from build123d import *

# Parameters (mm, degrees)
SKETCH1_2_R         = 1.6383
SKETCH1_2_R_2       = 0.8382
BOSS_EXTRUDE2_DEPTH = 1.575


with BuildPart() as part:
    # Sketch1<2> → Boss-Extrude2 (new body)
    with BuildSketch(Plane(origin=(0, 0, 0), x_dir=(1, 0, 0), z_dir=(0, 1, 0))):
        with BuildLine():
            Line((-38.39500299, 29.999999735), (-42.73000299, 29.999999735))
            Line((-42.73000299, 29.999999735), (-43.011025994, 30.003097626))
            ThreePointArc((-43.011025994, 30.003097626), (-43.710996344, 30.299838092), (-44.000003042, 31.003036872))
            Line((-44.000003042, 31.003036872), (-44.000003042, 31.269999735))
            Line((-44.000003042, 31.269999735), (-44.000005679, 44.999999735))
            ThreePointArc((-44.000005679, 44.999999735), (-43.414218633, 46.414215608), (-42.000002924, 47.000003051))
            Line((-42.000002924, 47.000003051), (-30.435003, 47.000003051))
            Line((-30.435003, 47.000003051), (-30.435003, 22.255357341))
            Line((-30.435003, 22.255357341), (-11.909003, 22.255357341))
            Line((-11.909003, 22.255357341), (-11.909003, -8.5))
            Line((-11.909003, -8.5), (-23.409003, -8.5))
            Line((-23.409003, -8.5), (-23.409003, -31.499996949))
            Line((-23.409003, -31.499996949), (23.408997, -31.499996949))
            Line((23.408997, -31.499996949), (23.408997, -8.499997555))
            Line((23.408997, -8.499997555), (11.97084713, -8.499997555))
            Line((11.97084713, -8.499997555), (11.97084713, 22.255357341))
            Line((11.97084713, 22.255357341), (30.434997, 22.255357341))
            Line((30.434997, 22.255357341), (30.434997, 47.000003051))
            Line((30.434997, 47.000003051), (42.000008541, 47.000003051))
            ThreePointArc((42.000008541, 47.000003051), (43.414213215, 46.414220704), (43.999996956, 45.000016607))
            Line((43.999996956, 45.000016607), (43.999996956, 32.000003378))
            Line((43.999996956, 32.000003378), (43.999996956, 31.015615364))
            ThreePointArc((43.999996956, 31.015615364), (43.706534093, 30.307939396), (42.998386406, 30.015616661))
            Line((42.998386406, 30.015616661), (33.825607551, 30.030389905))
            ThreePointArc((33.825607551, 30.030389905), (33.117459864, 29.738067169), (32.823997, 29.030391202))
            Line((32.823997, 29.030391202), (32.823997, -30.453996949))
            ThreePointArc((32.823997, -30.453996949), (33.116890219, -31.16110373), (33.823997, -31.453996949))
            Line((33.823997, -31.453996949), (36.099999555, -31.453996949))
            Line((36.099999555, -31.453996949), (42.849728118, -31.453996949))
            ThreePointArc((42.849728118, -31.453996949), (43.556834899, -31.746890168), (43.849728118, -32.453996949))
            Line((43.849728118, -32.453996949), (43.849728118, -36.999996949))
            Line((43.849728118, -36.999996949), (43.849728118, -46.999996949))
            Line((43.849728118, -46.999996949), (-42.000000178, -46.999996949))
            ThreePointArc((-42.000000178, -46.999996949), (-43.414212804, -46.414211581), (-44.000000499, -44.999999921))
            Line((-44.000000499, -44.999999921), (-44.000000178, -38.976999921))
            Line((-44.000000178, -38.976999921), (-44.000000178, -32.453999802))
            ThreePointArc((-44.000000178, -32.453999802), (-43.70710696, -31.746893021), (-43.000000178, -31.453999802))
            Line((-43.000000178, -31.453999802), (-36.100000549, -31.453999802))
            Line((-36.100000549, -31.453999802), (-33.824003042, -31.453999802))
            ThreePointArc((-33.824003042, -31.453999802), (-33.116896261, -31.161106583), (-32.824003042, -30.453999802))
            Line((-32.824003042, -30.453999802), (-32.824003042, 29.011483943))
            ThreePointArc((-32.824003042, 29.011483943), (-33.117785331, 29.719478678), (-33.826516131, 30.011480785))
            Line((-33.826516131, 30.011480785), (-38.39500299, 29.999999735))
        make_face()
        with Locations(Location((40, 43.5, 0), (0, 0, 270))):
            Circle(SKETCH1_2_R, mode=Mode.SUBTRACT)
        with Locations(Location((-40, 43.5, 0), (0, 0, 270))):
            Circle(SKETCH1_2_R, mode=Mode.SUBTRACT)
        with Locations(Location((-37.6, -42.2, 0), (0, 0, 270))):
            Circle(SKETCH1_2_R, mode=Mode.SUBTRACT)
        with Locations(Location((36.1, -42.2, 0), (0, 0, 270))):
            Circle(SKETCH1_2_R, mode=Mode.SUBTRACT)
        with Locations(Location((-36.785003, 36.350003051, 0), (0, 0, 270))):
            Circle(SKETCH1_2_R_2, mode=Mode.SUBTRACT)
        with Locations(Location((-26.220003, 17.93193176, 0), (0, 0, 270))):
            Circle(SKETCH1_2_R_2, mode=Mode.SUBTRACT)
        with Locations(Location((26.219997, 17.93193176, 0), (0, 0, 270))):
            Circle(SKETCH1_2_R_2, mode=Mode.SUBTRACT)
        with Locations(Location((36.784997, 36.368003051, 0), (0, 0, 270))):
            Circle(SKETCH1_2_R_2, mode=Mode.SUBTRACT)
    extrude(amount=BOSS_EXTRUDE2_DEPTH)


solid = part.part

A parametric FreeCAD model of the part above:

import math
import FreeCAD as App
import Part
import Sketcher

V = App.Vector
Q = App.Units.Quantity

doc = App.newDocument("Part")
body = doc.addObject("PartDesign::Body", "Body")

# Sketch on XZ plane
sketch1 = doc.addObject("Sketcher::SketchObject", "Sketch")
body.addObject(sketch1)
sketch1.AttachmentSupport = (doc.XZ_Plane, [""])
sketch1.MapMode = "FlatFace"
sketch1.addGeometry(Part.LineSegment(V(-42.73, -30, 0), V(-38.4, -30, 0)), False)
sketch1.addGeometry(Part.LineSegment(V(-38.4, -30, 0), V(-33.83, -30.01, 0)), False)
sketch1.addGeometry(Part.ArcOfCircle(Part.Circle(V(-33.82, -29.01, 0), V(0, 0, 1), 1), math.radians(-90), math.radians(0)), False)
sketch1.addGeometry(Part.LineSegment(V(-32.82, -29.01, 0), V(-32.82, 30.45, 0)), False)
sketch1.addGeometry(Part.ArcOfCircle(Part.Circle(V(-33.82, 30.45, 0), V(0, 0, 1), 1), math.radians(0), math.radians(90)), False)
sketch1.addGeometry(Part.LineSegment(V(-33.82, 31.45, 0), V(-43, 31.45, 0)), False)
sketch1.addGeometry(Part.ArcOfCircle(Part.Circle(V(-43, 32.45, 0), V(0, 0, 1), 1), math.radians(180), math.radians(270)), False)
sketch1.addGeometry(Part.LineSegment(V(-44, 32.45, 0), V(-44, 38.98, 0)), False)
sketch1.addGeometry(Part.LineSegment(V(-44, 38.98, 0), V(-44, 45, 0)), False)
sketch1.addGeometry(Part.ArcOfCircle(Part.Circle(V(-42, 45, 0), V(0, 0, 1), 2), math.radians(90), math.radians(180)), False)
sketch1.addGeometry(Part.LineSegment(V(-42, 47, 0), V(43.85, 47, 0)), False)
sketch1.addGeometry(Part.LineSegment(V(43.85, 47, 0), V(43.85, 32.45, 0)), False)
sketch1.addGeometry(Part.ArcOfCircle(Part.Circle(V(42.85, 32.45, 0), V(0, 0, 1), 1), math.radians(-90), math.radians(0)), False)
sketch1.addGeometry(Part.LineSegment(V(42.85, 31.45, 0), V(33.82, 31.45, 0)), False)
sketch1.addGeometry(Part.ArcOfCircle(Part.Circle(V(33.82, 30.45, 0), V(0, 0, 1), 1), math.radians(90), math.radians(180)), False)
sketch1.addGeometry(Part.LineSegment(V(32.82, 30.45, 0), V(32.82, -29.03, 0)), False)
sketch1.addGeometry(Part.ArcOfCircle(Part.Circle(V(33.82, -29.03, 0), V(0, 0, 1), 1), math.radians(-180), math.radians(-90)), False)
sketch1.addGeometry(Part.LineSegment(V(33.83, -30.03, 0), V(43, -30.02, 0)), False)
sketch1.addGeometry(Part.ArcOfCircle(Part.Circle(V(43, -31.02, 0), V(0, 0, 1), 1), math.radians(0), math.radians(90)), False)
sketch1.addGeometry(Part.LineSegment(V(44, -31.02, 0), V(44, -45, 0)), False)
sketch1.addGeometry(Part.ArcOfCircle(Part.Circle(V(42, -45, 0), V(0, 0, 1), 2), math.radians(-90), math.radians(0)), False)
sketch1.addGeometry(Part.LineSegment(V(42, -47, 0), V(30.43, -47, 0)), False)
sketch1.addGeometry(Part.LineSegment(V(30.43, -47, 0), V(30.43, -22.26, 0)), False)
sketch1.addGeometry(Part.LineSegment(V(30.43, -22.26, 0), V(11.97, -22.26, 0)), False)
sketch1.addGeometry(Part.LineSegment(V(11.97, -22.26, 0), V(11.97, 8.5, 0)), False)
sketch1.addGeometry(Part.LineSegment(V(11.97, 8.5, 0), V(23.41, 8.5, 0)), False)
sketch1.addGeometry(Part.LineSegment(V(23.41, 8.5, 0), V(23.41, 31.5, 0)), False)
sketch1.addGeometry(Part.LineSegment(V(23.41, 31.5, 0), V(-23.41, 31.5, 0)), False)
sketch1.addGeometry(Part.LineSegment(V(-23.41, 31.5, 0), V(-23.41, 8.5, 0)), False)
sketch1.addGeometry(Part.LineSegment(V(-23.41, 8.5, 0), V(-11.91, 8.5, 0)), False)
sketch1.addGeometry(Part.LineSegment(V(-11.91, 8.5, 0), V(-11.91, -22.26, 0)), False)
sketch1.addGeometry(Part.LineSegment(V(-11.91, -22.26, 0), V(-30.44, -22.26, 0)), False)
sketch1.addGeometry(Part.LineSegment(V(-30.44, -22.26, 0), V(-30.44, -47, 0)), False)
sketch1.addGeometry(Part.LineSegment(V(-30.44, -47, 0), V(-42, -47, 0)), False)
sketch1.addGeometry(Part.ArcOfCircle(Part.Circle(V(-42, -45, 0), V(0, 0, 1), 2), math.radians(180), math.radians(270)), False)
sketch1.addGeometry(Part.LineSegment(V(-44, -45, 0), V(-44, -31.27, 0)), False)
sketch1.addGeometry(Part.LineSegment(V(-44, -31.27, 0), V(-44, -31, 0)), False)
sketch1.addGeometry(Part.ArcOfCircle(Part.Circle(V(-43, -31, 0), V(0, 0, 1), 1), math.radians(91), math.radians(180)), False)
sketch1.addGeometry(Part.LineSegment(V(-43.01, -30, 0), V(-42.73, -30, 0)), False)
sketch1.addGeometry(Part.Circle(V(36.1, 42.2, 0), V(0, 0, 1), 1.64), False)
sketch1.addGeometry(Part.Circle(V(-37.6, 42.2, 0), V(0, 0, 1), 1.64), False)
sketch1.addGeometry(Part.Circle(V(26.22, -17.93, 0), V(0, 0, 1), 0.84), False)
sketch1.addGeometry(Part.Circle(V(36.78, -36.37, 0), V(0, 0, 1), 0.84), False)
sketch1.addGeometry(Part.Circle(V(40, -43.5, 0), V(0, 0, 1), 1.64), False)
sketch1.addGeometry(Part.Circle(V(-26.22, -17.93, 0), V(0, 0, 1), 0.84), False)
sketch1.addGeometry(Part.Circle(V(-36.79, -36.35, 0), V(0, 0, 1), 0.84), False)
sketch1.addGeometry(Part.Circle(V(-40, -43.5, 0), V(0, 0, 1), 1.64), False)
sketch1.addConstraint(Sketcher.Constraint("Coincident", 0, 2, 1, 1))
sketch1.addConstraint(Sketcher.Constraint("Tangent", 1, 2, 2, 1))
sketch1.addConstraint(Sketcher.Constraint("Tangent", 2, 2, 3, 1))
sketch1.addConstraint(Sketcher.Constraint("Tangent", 3, 2, 4, 1))
sketch1.addConstraint(Sketcher.Constraint("Tangent", 4, 2, 5, 1))
sketch1.addConstraint(Sketcher.Constraint("Tangent", 5, 2, 6, 2))
sketch1.addConstraint(Sketcher.Constraint("Tangent", 6, 1, 7, 1))
sketch1.addConstraint(Sketcher.Constraint("Coincident", 7, 2, 8, 1))
sketch1.addConstraint(Sketcher.Constraint("Tangent", 8, 2, 9, 2))
sketch1.addConstraint(Sketcher.Constraint("Tangent", 9, 1, 10, 1))
sketch1.addConstraint(Sketcher.Constraint("Coincident", 10, 2, 11, 1))
sketch1.addConstraint(Sketcher.Constraint("Tangent", 11, 2, 12, 2))
sketch1.addConstraint(Sketcher.Constraint("Tangent", 12, 1, 13, 1))
sketch1.addConstraint(Sketcher.Constraint("Tangent", 13, 2, 14, 1))
sketch1.addConstraint(Sketcher.Constraint("Tangent", 14, 2, 15, 1))
sketch1.addConstraint(Sketcher.Constraint("Tangent", 15, 2, 16, 1))
sketch1.addConstraint(Sketcher.Constraint("Tangent", 16, 2, 17, 1))
sketch1.addConstraint(Sketcher.Constraint("Tangent", 17, 2, 18, 2))
sketch1.addConstraint(Sketcher.Constraint("Tangent", 18, 1, 19, 1))
sketch1.addConstraint(Sketcher.Constraint("Tangent", 19, 2, 20, 2))
sketch1.addConstraint(Sketcher.Constraint("Tangent", 20, 1, 21, 1))
sketch1.addConstraint(Sketcher.Constraint("Coincident", 21, 2, 22, 1))
sketch1.addConstraint(Sketcher.Constraint("Coincident", 22, 2, 23, 1))
sketch1.addConstraint(Sketcher.Constraint("Coincident", 23, 2, 24, 1))
sketch1.addConstraint(Sketcher.Constraint("Coincident", 24, 2, 25, 1))
sketch1.addConstraint(Sketcher.Constraint("Coincident", 25, 2, 26, 1))
sketch1.addConstraint(Sketcher.Constraint("Coincident", 26, 2, 27, 1))
sketch1.addConstraint(Sketcher.Constraint("Coincident", 27, 2, 28, 1))
sketch1.addConstraint(Sketcher.Constraint("Coincident", 28, 2, 29, 1))
sketch1.addConstraint(Sketcher.Constraint("Coincident", 29, 2, 30, 1))
sketch1.addConstraint(Sketcher.Constraint("Coincident", 30, 2, 31, 1))
sketch1.addConstraint(Sketcher.Constraint("Coincident", 31, 2, 32, 1))
sketch1.addConstraint(Sketcher.Constraint("Coincident", 32, 2, 33, 1))
sketch1.addConstraint(Sketcher.Constraint("Tangent", 33, 2, 34, 2))
sketch1.addConstraint(Sketcher.Constraint("Tangent", 34, 1, 35, 1))
sketch1.addConstraint(Sketcher.Constraint("Coincident", 35, 2, 36, 1))
sketch1.addConstraint(Sketcher.Constraint("Tangent", 36, 2, 37, 2))
sketch1.addConstraint(Sketcher.Constraint("Tangent", 37, 1, 38, 1))
sketch1.addConstraint(Sketcher.Constraint("Coincident", 38, 2, 0, 1))
sketch1.addConstraint(Sketcher.Constraint("Horizontal", 0))
sketch1.addConstraint(Sketcher.Constraint("Vertical", 3))
sketch1.addConstraint(Sketcher.Constraint("Horizontal", 5))
sketch1.addConstraint(Sketcher.Constraint("Vertical", 7))
sketch1.addConstraint(Sketcher.Constraint("Vertical", 8))
sketch1.addConstraint(Sketcher.Constraint("Horizontal", 10))
sketch1.addConstraint(Sketcher.Constraint("Vertical", 11))
sketch1.addConstraint(Sketcher.Constraint("Horizontal", 13))
sketch1.addConstraint(Sketcher.Constraint("Vertical", 15))
sketch1.addConstraint(Sketcher.Constraint("Vertical", 19))
sketch1.addConstraint(Sketcher.Constraint("Horizontal", 21))
sketch1.addConstraint(Sketcher.Constraint("Vertical", 22))
sketch1.addConstraint(Sketcher.Constraint("Horizontal", 23))
sketch1.addConstraint(Sketcher.Constraint("Vertical", 24))
sketch1.addConstraint(Sketcher.Constraint("Horizontal", 25))
sketch1.addConstraint(Sketcher.Constraint("Vertical", 26))
sketch1.addConstraint(Sketcher.Constraint("Horizontal", 27))
sketch1.addConstraint(Sketcher.Constraint("Vertical", 28))
sketch1.addConstraint(Sketcher.Constraint("Horizontal", 29))
sketch1.addConstraint(Sketcher.Constraint("Vertical", 30))
sketch1.addConstraint(Sketcher.Constraint("Horizontal", 31))
sketch1.addConstraint(Sketcher.Constraint("Vertical", 32))
sketch1.addConstraint(Sketcher.Constraint("Horizontal", 33))
sketch1.addConstraint(Sketcher.Constraint("Vertical", 36))
sketch1.addConstraint(Sketcher.Constraint("Equal", 2, 4))
sketch1.addConstraint(Sketcher.Constraint("Equal", 4, 6))
sketch1.addConstraint(Sketcher.Constraint("Equal", 6, 12))
sketch1.addConstraint(Sketcher.Constraint("Equal", 12, 14))
sketch1.addConstraint(Sketcher.Constraint("Equal", 14, 16))
sketch1.addConstraint(Sketcher.Constraint("Equal", 16, 18))
sketch1.addConstraint(Sketcher.Constraint("Equal", 18, 37))
sketch1.addConstraint(Sketcher.Constraint("Equal", 39, 40))
sketch1.addConstraint(Sketcher.Constraint("Equal", 41, 42))
sketch1.addConstraint(Sketcher.Constraint("Equal", 40, 43))
sketch1.addConstraint(Sketcher.Constraint("Equal", 42, 44))
sketch1.addConstraint(Sketcher.Constraint("Equal", 44, 45))
sketch1.addConstraint(Sketcher.Constraint("Equal", 43, 46))
sketch1.addConstraint(Sketcher.Constraint("Symmetric", 4, 3, 14, 3, -2))
sketch1.addConstraint(Sketcher.Constraint("Symmetric", 41, 3, 44, 3, -2))
sketch1.addConstraint(Sketcher.Constraint("Symmetric", 43, 3, 46, 3, -2))
sketch1.addConstraint(Sketcher.Constraint("Symmetric", 25, 2, 28, 2, -2))
sketch1.addConstraint(Sketcher.Constraint("Symmetric", 22, 2, 31, 2, -2))
sketch1.addConstraint(Sketcher.Constraint("Symmetric", 20, 1, 33, 2, -2))
sketch1.addConstraint(Sketcher.Constraint("Symmetric", 9, 3, 34, 3, -1))
sketch1.addConstraint(Sketcher.Constraint("Symmetric", 8, 2, 34, 1, -1))
sketch1.addConstraint(Sketcher.Constraint("Horizontal", 39, 3, 40, 3))
sketch1.addConstraint(Sketcher.Constraint("Radius", 2, Q("1 mm")))
sketch1.addConstraint(Sketcher.Constraint("Radius", 9, Q("2 mm")))
sketch1.addConstraint(Sketcher.Constraint("DistanceY", 26, 1, 26, 2, Q("22.999999 mm")))
sketch1.addConstraint(Sketcher.Constraint("DistanceX", 29, 1, 29, 2, Q("11.5 mm")))
sketch1.addConstraint(Sketcher.Constraint("DistanceX", 6, 3, -1, 1, Q("43 mm")))
sketch1.addConstraint(Sketcher.Constraint("DistanceY", 34, 3, -1, 1, Q("45 mm")))
sketch1.addConstraint(Sketcher.Constraint("DistanceX", -1, 1, 43, 3, Q("40 mm")))
sketch1.addConstraint(Sketcher.Constraint("DistanceY", 0, 2, -1, 1, Q("30 mm")))
sketch1.addConstraint(Sketcher.Constraint("Diameter", 39, Q("3.2766 mm")))
sketch1.addConstraint(Sketcher.Constraint("Diameter", 41, Q("1.6764 mm")))
sketch1.addConstraint(Sketcher.Constraint("DistanceX", -1, 1, 39, 3, Q("36.1 mm")))
sketch1.addConstraint(Sketcher.Constraint("DistanceY", -1, 1, 39, 3, Q("42.2 mm")))
sketch1.addConstraint(Sketcher.Constraint("DistanceX", 40, 3, -1, 1, Q("37.6 mm")))
sketch1.addConstraint(Sketcher.Constraint("DistanceY", 43, 3, -1, 1, Q("43.5 mm")))
sketch1.addConstraint(Sketcher.Constraint("DistanceY", -1, 1, 28, 2, Q("8.5 mm")))
sketch1.addConstraint(Sketcher.Constraint("Distance", 35, Q("13.73 mm")))
sketch1.addConstraint(Sketcher.Constraint("DistanceX", 0, 1, 0, 2, Q("4.335 mm")))
sketch1.addConstraint(Sketcher.Constraint("DistanceX", 27, 2, 27, 1, Q("46.818 mm")))
sketch1.addConstraint(Sketcher.Constraint("DistanceX", 31, 2, 31, 1, Q("18.526 mm")))
sketch1.addConstraint(Sketcher.Constraint("DistanceY", 7, 1, 7, 2, Q("6.523 mm")))
sketch1.addConstraint(Sketcher.Constraint("DistanceY", 8, 1, 8, 2, Q("6.023 mm")))
sketch1.addConstraint(Sketcher.Constraint("Radius", 20, Q("1.999988 mm")))
sketch1.addConstraint(Sketcher.Constraint("DistanceX", 41, 3, 18, 3, Q("16.78 mm")))
sketch1.addConstraint(Sketcher.Constraint("DistanceX", 0, 2, 45, 3, Q("1.61 mm")))
sketch1.addConstraint(Sketcher.Constraint("DistanceX", 21, 2, 42, 3, Q("6.35 mm")))
sketch1.addConstraint(Sketcher.Constraint("DistanceX", 0, 2, 31, 2, Q("7.96 mm")))
sketch1.addConstraint(Sketcher.Constraint("DistanceY", 32, 2, 45, 3, Q("10.65 mm")))
sketch1.addConstraint(Sketcher.Constraint("DistanceY", 19, 2, 19, 1, Q("13.984401 mm")))
sketch1.addConstraint(Sketcher.Constraint("DistanceX", 4, 3, 14, 3, Q("67.648 mm")))
sketch1.addConstraint(Sketcher.Constraint("DistanceY", 42, 3, 14, 3, Q("66.822 mm")))
sketch1.addConstraint(Sketcher.Constraint("Distance", 1, Q("4.568501 mm")))
sketch1.addConstraint(Sketcher.Constraint("DistanceX", 10, 1, 10, 2, Q("85.849728 mm")))
sketch1.addConstraint(Sketcher.Constraint("DistanceX", 23, 2, 23, 1, Q("18.46415 mm")))
sketch1.addConstraint(Sketcher.Constraint("DistanceY", 15, 2, 15, 1, Q("59.484388 mm")))
sketch1.addConstraint(Sketcher.Constraint("Distance", 38, Q("0.28104 mm")))
sketch1.addConstraint(Sketcher.Constraint("DistanceY", 22, 1, 22, 2, Q("24.744646 mm")))
sketch1.addConstraint(Sketcher.Constraint("DistanceY", 41, 3, -1, 1, Q("17.931932 mm")))
pad1 = doc.addObject("PartDesign::Pad", "Pad")
body.addObject(pad1)
pad1.Profile = sketch1
pad1.Length = 1.575
pad1.Reversed = True

doc.recompute()
